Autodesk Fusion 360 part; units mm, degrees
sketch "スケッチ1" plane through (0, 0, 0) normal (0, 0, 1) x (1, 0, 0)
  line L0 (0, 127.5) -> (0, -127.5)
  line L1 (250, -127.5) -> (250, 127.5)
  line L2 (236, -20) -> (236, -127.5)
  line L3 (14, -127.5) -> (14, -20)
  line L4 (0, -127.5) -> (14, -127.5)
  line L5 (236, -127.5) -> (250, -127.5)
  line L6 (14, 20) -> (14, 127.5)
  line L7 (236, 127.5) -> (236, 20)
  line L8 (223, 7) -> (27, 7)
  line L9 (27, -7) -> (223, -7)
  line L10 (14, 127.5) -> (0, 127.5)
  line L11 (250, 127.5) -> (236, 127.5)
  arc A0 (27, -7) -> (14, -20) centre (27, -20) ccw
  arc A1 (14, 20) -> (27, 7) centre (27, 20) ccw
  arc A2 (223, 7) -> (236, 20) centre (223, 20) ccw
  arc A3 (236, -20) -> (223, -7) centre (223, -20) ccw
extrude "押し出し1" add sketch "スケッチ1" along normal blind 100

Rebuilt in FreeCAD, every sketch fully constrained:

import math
import FreeCAD as App
import Part
import Sketcher

V = App.Vector

doc = App.newDocument("Part")
params = doc.addObject("Spreadsheet::Sheet", "Params")
for row, (alias, value) in enumerate([
    ("sketch1_radius", "13 mm"),
    ("sketch1_width", "14 mm"),
    ("sketch1_width2", "196 mm"),
    ("sketch1_height", "255 mm"),
    ("sketch1_height2", "107.5 mm"),
    ("pad1_length", "100 mm"),
], start=1):
    params.set(f"A{row}", alias)
    params.set(f"B{row}", "=" + value)
    params.setAlias(f"B{row}", alias)

body = doc.addObject("PartDesign::Body", "Body")

sketch1 = doc.addObject("Sketcher::SketchObject", "Sketch")
body.addObject(sketch1)
sketch1.AttachmentSupport = (doc.XY_Plane, [""])
sketch1.MapMode = "FlatFace"
sketch1.addGeometry(Part.LineSegment(V(14, 128, 0), V(0, 128, 0)), False)
sketch1.addGeometry(Part.LineSegment(V(0, 128, 0), V(0, -128, 0)), False)
sketch1.addGeometry(Part.LineSegment(V(0, -128, 0), V(14, -128, 0)), False)
sketch1.addGeometry(Part.LineSegment(V(14, -128, 0), V(14, -20, 0)), False)
sketch1.addGeometry(Part.ArcOfCircle(Part.Circle(V(27, -20, 0), V(0, 0, 1), 13), math.radians(90), math.radians(180)), False)
sketch1.addGeometry(Part.LineSegment(V(27, -7, 0), V(223, -7, 0)), False)
sketch1.addGeometry(Part.ArcOfCircle(Part.Circle(V(223, -20, 0), V(0, 0, 1), 13), math.radians(0), math.radians(90)), False)
sketch1.addGeometry(Part.LineSegment(V(236, -20, 0), V(236, -128, 0)), False)
sketch1.addGeometry(Part.LineSegment(V(236, -128, 0), V(250, -128, 0)), False)
sketch1.addGeometry(Part.LineSegment(V(250, -128, 0), V(250, 128, 0)), False)
sketch1.addGeometry(Part.LineSegment(V(250, 128, 0), V(236, 128, 0)), False)
sketch1.addGeometry(Part.LineSegment(V(236, 128, 0), V(236, 20, 0)), False)
sketch1.addGeometry(Part.ArcOfCircle(Part.Circle(V(223, 20, 0), V(0, 0, 1), 13), math.radians(-90), math.radians(0)), False)
sketch1.addGeometry(Part.LineSegment(V(223, 7, 0), V(27, 7, 0)), False)
sketch1.addGeometry(Part.ArcOfCircle(Part.Circle(V(27, 20, 0), V(0, 0, 1), 13), math.radians(180), math.radians(270)), False)
sketch1.addGeometry(Part.LineSegment(V(14, 20, 0), V(14, 128, 0)), False)
sketch1.addConstraint(Sketcher.Constraint("Coincident", 0, 2, 1, 1))
sketch1.addConstraint(Sketcher.Constraint("Coincident", 1, 2, 2, 1))
sketch1.addConstraint(Sketcher.Constraint("Coincident", 2, 2, 3, 1))
sketch1.addConstraint(Sketcher.Constraint("Tangent", 3, 2, 4, 2))
sketch1.addConstraint(Sketcher.Constraint("Tangent", 4, 1, 5, 1))
sketch1.addConstraint(Sketcher.Constraint("Tangent", 5, 2, 6, 2))
sketch1.addConstraint(Sketcher.Constraint("Tangent", 6, 1, 7, 1))
sketch1.addConstraint(Sketcher.Constraint("Coincident", 7, 2, 8, 1))
sketch1.addConstraint(Sketcher.Constraint("Coincident", 8, 2, 9, 1))
sketch1.addConstraint(Sketcher.Constraint("Coincident", 9, 2, 10, 1))
sketch1.addConstraint(Sketcher.Constraint("Coincident", 10, 2, 11, 1))
sketch1.addConstraint(Sketcher.Constraint("Tangent", 11, 2, 12, 2))
sketch1.addConstraint(Sketcher.Constraint("Tangent", 12, 1, 13, 1))
sketch1.addConstraint(Sketcher.Constraint("Tangent", 13, 2, 14, 2))
sketch1.addConstraint(Sketcher.Constraint("Tangent", 14, 1, 15, 1))
sketch1.addConstraint(Sketcher.Constraint("Coincident", 15, 2, 0, 1))
sketch1.addConstraint(Sketcher.Constraint("Horizontal", 0))
sketch1.addConstraint(Sketcher.Constraint("Vertical", 1))
sketch1.addConstraint(Sketcher.Constraint("Horizontal", 2))
sketch1.addConstraint(Sketcher.Constraint("Vertical", 3))
sketch1.addConstraint(Sketcher.Constraint("Horizontal", 5))
sketch1.addConstraint(Sketcher.Constraint("Vertical", 7))
sketch1.addConstraint(Sketcher.Constraint("Horizontal", 8))
sketch1.addConstraint(Sketcher.Constraint("Vertical", 9))
sketch1.addConstraint(Sketcher.Constraint("Horizontal", 10))
sketch1.addConstraint(Sketcher.Constraint("Vertical", 11))
sketch1.addConstraint(Sketcher.Constraint("Horizontal", 13))
sketch1.addConstraint(Sketcher.Constraint("Vertical", 15))
sketch1.addConstraint(Sketcher.Constraint("Equal", 4, 6))
sketch1.addConstraint(Sketcher.Constraint("Equal", 6, 12))
sketch1.addConstraint(Sketcher.Constraint("Equal", 12, 14))
sketch1.addConstraint(Sketcher.Constraint("Symmetric", 0, 2, 1, 2, -1, 1))
sketch1.addConstraint(Sketcher.Constraint("Symmetric", 6, 3, 12, 3, -1))
sketch1.addConstraint(Sketcher.Constraint("Horizontal", 2, 2, 7, 2))
sketch1.addConstraint(Sketcher.Constraint("Horizontal", 0, 2, 9, 2))
sketch1.addConstraint(Sketcher.Constraint("Vertical", 4, 3, 14, 3))
sketch1.addConstraint(Sketcher.Constraint("Equal", 2, 8))
sketch1.addConstraint(Sketcher.Constraint("Radius", 4, 13.0))
sketch1.addConstraint(Sketcher.Constraint("DistanceX", 0, 2, 0, 1, 14.0))
sketch1.addConstraint(Sketcher.Constraint("DistanceX", 5, 1, 5, 2, 196.0))
sketch1.addConstraint(Sketcher.Constraint("DistanceY", 1, 2, 1, 1, 255.0))
sketch1.addConstraint(Sketcher.Constraint("DistanceY", 3, 1, 3, 2, 107.5))
sketch1.setExpression("Constraints[37]", "Params.sketch1_radius")
sketch1.setExpression("Constraints[38]", "Params.sketch1_width")
sketch1.setExpression("Constraints[39]", "Params.sketch1_width2")
sketch1.setExpression("Constraints[40]", "Params.sketch1_height")
sketch1.setExpression("Constraints[41]", "Params.sketch1_height2")
pad1 = doc.addObject("PartDesign::Pad", "Pad")
body.addObject(pad1)
pad1.Profile = sketch1
pad1.setExpression("Length", "Params.pad1_length")

doc.recompute()
